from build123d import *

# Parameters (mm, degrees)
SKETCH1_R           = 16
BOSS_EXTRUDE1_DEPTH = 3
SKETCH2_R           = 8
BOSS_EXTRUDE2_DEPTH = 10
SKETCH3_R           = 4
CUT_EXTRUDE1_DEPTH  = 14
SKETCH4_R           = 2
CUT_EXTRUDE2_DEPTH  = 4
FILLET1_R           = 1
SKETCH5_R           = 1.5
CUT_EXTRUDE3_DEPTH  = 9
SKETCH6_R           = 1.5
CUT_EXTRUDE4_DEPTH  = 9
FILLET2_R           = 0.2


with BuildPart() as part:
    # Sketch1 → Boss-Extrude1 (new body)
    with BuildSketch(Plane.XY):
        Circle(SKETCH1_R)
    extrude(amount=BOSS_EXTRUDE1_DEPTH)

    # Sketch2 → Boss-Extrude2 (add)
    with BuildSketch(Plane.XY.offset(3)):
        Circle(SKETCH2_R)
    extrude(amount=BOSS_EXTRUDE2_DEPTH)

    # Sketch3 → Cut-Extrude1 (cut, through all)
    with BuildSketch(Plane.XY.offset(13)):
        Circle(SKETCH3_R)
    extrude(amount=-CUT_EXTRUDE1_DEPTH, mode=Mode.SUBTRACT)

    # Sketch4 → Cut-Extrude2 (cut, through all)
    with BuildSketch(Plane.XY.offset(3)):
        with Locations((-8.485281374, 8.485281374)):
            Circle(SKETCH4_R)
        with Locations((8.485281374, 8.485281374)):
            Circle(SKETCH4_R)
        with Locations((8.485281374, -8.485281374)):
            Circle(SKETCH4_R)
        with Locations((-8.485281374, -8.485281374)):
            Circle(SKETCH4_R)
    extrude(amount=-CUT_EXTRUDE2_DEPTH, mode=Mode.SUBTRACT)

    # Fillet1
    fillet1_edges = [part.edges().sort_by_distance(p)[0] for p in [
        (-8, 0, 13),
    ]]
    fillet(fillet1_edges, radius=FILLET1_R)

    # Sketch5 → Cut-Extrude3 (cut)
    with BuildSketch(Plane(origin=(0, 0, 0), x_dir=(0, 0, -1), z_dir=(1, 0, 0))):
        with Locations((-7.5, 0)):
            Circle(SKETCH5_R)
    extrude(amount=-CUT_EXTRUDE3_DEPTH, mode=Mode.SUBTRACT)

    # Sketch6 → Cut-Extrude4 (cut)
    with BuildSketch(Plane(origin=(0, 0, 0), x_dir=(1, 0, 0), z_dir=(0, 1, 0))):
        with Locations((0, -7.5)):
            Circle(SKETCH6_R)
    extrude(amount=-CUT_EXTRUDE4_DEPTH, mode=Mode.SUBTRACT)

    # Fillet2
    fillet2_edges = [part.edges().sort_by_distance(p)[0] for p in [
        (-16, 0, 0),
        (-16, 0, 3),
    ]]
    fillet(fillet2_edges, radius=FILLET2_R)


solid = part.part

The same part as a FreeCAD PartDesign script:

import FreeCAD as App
import Part
import Sketcher
from FreeCAD import Vector


def edges_at(feature, points):
    """Names of the edges that pass closest to the given points."""
    edges = feature.Shape.Edges
    near = lambda p: min(range(len(edges)), key=lambda i: edges[i].distToShape(Part.Vertex(*p))[0])
    return sorted({f"Edge{near(p) + 1}" for p in points})

doc = App.newDocument("Part")
body = doc.addObject("PartDesign::Body", "Body")

sketch1 = body.newObject("Sketcher::SketchObject", "Sketch")
sketch1.AttachmentSupport = (doc.getObject("XY_Plane"), [""])
sketch1.MapMode = "FlatFace"
sketch1.addGeometry(Part.Circle(Vector(0, 0, 0), Vector(0, 0, 1), 16), False)
sketch1.addConstraint([
    Sketcher.Constraint("Coincident", 0, 3, -1, 1),
    Sketcher.Constraint("Diameter", 0, 32.0),
])
pad1 = body.newObject("PartDesign::Pad", "Pad")
pad1.Profile = sketch1
pad1.Length = 3

sketch2 = body.newObject("Sketcher::SketchObject", "Sketch001")
sketch2.AttachmentSupport = (doc.getObject("XY_Plane"), [""])
sketch2.MapMode = "FlatFace"
sketch2.AttachmentOffset = App.Placement(Vector(0, 0, 3), App.Rotation())
sketch2.addGeometry(Part.Circle(Vector(0, 0, 0), Vector(0, 0, 1), 8), False)
sketch2.addConstraint([
    Sketcher.Constraint("Coincident", 0, 3, -1, 1),
    Sketcher.Constraint("Diameter", 0, 16.0),
])
pad2 = body.newObject("PartDesign::Pad", "Pad001")
pad2.Profile = sketch2
pad2.Length = 10

sketch3 = body.newObject("Sketcher::SketchObject", "Sketch002")
sketch3.AttachmentSupport = (doc.getObject("XY_Plane"), [""])
sketch3.MapMode = "FlatFace"
sketch3.AttachmentOffset = App.Placement(Vector(0, 0, 13), App.Rotation())
sketch3.addGeometry(Part.Circle(Vector(0, 0, 0), Vector(0, 0, 1), 4), False)
sketch3.addConstraint([
    Sketcher.Constraint("Coincident", 0, 3, -1, 1),
    Sketcher.Constraint("Diameter", 0, 8.0),
])
pocket1 = body.newObject("PartDesign::Pocket", "Pocket")
pocket1.Profile = sketch3
pocket1.Type = "ThroughAll"

sketch4 = body.newObject("Sketcher::SketchObject", "Sketch003")
sketch4.AttachmentSupport = (doc.getObject("XY_Plane"), [""])
sketch4.MapMode = "FlatFace"
sketch4.AttachmentOffset = App.Placement(Vector(0, 0, 3), App.Rotation())
sketch4.addGeometry([
    Part.Circle(Vector(-8.5, 8.5, 0), Vector(0, 0, 1), 2),
    Part.Circle(Vector(8.5, 8.5, 0), Vector(0, 0, 1), 2),
    Part.Circle(Vector(8.5, -8.5, 0), Vector(0, 0, 1), 2),
    Part.Circle(Vector(-8.5, -8.5, 0), Vector(0, 0, 1), 2),
], False)
sketch4.addConstraint([
    Sketcher.Constraint("Equal", 0, 1),
    Sketcher.Constraint("Equal", 1, 2),
    Sketcher.Constraint("Equal", 2, 3),
    Sketcher.Constraint("Symmetric", 0, 3, 2, 3, -1, 1),
    Sketcher.Constraint("Symmetric", 1, 3, 3, 3, -1, 1),
    Sketcher.Constraint("Symmetric", 0, 3, 1, 3, -2),
    Sketcher.Constraint("Diameter", 0, 4.0),
    Sketcher.Constraint("DistanceX", 0, 3, -1, 1, 8.485281),
    Sketcher.Constraint("DistanceY", -1, 1, 0, 3, 8.485281),
])
pocket2 = body.newObject("PartDesign::Pocket", "Pocket001")
pocket2.Profile = sketch4
pocket2.Type = "ThroughAll"
doc.recompute()

fillet = body.newObject("PartDesign::Fillet", "Fillet")
fillet.Base = (pocket2, edges_at(pocket2, [(-8, 0, 13)]))
fillet.Radius = 1

sketch5 = body.newObject("Sketcher::SketchObject", "Sketch004")
sketch5.AttachmentSupport = (doc.getObject("YZ_Plane"), [""])
sketch5.MapMode = "FlatFace"
sketch5.addGeometry(Part.Circle(Vector(0, 7.5, 0), Vector(0, 0, 1), 1.5), False)
sketch5.addConstraint([
    Sketcher.Constraint("PointOnObject", 0, 3, -2),
    Sketcher.Constraint("Diameter", 0, 3.0),
    Sketcher.Constraint("DistanceY", -1, 1, 0, 3, 7.5),
])
pocket3 = body.newObject("PartDesign::Pocket", "Pocket002")
pocket3.Profile = sketch5
pocket3.Length = 9

sketch6 = body.newObject("Sketcher::SketchObject", "Sketch005")
sketch6.AttachmentSupport = (doc.getObject("XZ_Plane"), [""])
sketch6.MapMode = "FlatFace"
sketch6.addGeometry(Part.Circle(Vector(0, 7.5, 0), Vector(0, 0, 1), 1.5), False)
sketch6.addConstraint([
    Sketcher.Constraint("PointOnObject", 0, 3, -2),
    Sketcher.Constraint("Diameter", 0, 3.0),
    Sketcher.Constraint("DistanceY", -1, 1, 0, 3, 7.5),
])
pocket4 = body.newObject("PartDesign::Pocket", "Pocket003")
pocket4.Profile = sketch6
pocket4.Length = 9
pocket4.Reversed = True
doc.recompute()

fillet2 = body.newObject("PartDesign::Fillet", "Fillet001")
fillet2.Base = (pocket4, edges_at(pocket4, [(-16, 0, 0), (-16, 0, 3)]))
fillet2.Radius = 0.2

doc.recompute()
